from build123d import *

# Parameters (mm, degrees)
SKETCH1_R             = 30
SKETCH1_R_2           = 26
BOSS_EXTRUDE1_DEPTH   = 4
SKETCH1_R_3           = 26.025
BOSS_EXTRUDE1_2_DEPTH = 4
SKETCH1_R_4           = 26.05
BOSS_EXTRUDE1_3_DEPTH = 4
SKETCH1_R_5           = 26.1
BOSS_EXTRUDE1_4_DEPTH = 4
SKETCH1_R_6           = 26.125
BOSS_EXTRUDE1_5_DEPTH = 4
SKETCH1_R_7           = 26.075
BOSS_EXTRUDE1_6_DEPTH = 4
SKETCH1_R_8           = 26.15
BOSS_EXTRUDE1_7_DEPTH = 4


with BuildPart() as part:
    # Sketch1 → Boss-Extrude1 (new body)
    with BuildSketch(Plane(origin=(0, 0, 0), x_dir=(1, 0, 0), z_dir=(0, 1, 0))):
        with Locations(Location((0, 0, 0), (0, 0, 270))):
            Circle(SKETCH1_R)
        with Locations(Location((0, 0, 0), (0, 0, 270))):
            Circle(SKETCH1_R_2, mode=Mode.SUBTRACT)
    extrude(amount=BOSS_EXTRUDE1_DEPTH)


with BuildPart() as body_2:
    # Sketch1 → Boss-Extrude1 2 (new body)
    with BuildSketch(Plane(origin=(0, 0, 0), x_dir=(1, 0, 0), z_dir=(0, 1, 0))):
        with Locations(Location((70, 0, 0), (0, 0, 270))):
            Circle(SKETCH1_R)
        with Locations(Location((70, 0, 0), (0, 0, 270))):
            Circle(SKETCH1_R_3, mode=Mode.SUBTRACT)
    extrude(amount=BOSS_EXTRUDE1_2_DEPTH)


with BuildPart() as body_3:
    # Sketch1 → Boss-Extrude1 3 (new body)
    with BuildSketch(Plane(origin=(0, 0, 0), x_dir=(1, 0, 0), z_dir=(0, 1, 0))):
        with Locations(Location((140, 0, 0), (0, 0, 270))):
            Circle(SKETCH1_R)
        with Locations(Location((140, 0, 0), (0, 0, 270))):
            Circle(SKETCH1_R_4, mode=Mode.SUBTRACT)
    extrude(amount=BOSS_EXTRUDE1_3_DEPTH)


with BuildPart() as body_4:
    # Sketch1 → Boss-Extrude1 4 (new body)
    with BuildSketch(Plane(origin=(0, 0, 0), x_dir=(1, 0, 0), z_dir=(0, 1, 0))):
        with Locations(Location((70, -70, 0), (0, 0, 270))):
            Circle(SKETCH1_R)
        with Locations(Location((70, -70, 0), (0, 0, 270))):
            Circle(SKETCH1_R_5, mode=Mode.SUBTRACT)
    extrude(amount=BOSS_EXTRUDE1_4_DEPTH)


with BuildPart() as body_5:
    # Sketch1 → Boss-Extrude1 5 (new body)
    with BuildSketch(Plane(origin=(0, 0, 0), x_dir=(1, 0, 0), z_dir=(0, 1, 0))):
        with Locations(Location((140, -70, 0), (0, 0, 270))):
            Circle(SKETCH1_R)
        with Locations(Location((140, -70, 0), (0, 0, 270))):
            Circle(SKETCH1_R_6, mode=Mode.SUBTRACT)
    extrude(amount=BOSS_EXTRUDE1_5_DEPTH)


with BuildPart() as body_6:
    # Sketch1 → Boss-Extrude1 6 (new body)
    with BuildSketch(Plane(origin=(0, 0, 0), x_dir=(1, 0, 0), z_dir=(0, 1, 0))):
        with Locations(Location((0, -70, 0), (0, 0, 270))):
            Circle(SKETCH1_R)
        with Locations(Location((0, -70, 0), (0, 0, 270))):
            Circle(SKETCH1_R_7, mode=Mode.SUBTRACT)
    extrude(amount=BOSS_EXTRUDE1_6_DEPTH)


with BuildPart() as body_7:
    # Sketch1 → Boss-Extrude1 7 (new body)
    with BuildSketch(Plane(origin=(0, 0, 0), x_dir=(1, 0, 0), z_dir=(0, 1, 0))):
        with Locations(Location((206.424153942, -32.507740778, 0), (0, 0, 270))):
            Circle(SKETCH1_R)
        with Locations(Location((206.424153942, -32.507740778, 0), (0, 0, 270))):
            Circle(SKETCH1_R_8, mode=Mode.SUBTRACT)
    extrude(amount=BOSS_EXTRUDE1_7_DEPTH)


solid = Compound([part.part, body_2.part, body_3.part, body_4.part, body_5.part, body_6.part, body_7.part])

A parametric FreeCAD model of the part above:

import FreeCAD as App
import Part
import Sketcher

doc = App.newDocument("Part")
body = doc.addObject("PartDesign::Body", "Body")

# Sketch on XZ plane
sketch1 = doc.addObject("Sketcher::SketchObject", "Sketch")
body.addObject(sketch1)
sketch1.AttachmentSupport = (doc.XZ_Plane, [""])
sketch1.MapMode = "FlatFace"
sketch1.addGeometry(Part.Circle(App.Vector(0, 0, 0), App.Vector(0, 0, 1), 30), False)
sketch1.addGeometry(Part.Circle(App.Vector(0, 0, 0), App.Vector(0, 0, 1), 26), False)
sketch1.addConstraint(Sketcher.Constraint("Coincident", 0, 3, -1, 1))
sketch1.addConstraint(Sketcher.Constraint("Coincident", 1, 3, -1, 1))
sketch1.addConstraint(Sketcher.Constraint("Diameter", 0, 60.0))
sketch1.addConstraint(Sketcher.Constraint("Diameter", 1, 52.0))
pad1 = doc.addObject("PartDesign::Pad", "Pad")
body.addObject(pad1)
pad1.Profile = sketch1
pad1.Length = 4
pad1.Reversed = True
body2 = doc.addObject("PartDesign::Body", "Body001")

# Sketch on XZ plane
sketch2 = doc.addObject("Sketcher::SketchObject", "Sketch001")
body2.addObject(sketch2)
sketch2.AttachmentSupport = (doc.getObject("XZ_Plane001"), [""])
sketch2.MapMode = "FlatFace"
sketch2.addGeometry(Part.Circle(App.Vector(70, 0, 0), App.Vector(0, 0, 1), 30), False)
sketch2.addGeometry(Part.Circle(App.Vector(70, 0, 0), App.Vector(0, 0, 1), 26.025), False)
sketch2.addConstraint(Sketcher.Constraint("Coincident", 1, 3, 0, 3))
sketch2.addConstraint(Sketcher.Constraint("PointOnObject", 0, 3, -1))
sketch2.addConstraint(Sketcher.Constraint("Diameter", 0, 60.0))
sketch2.addConstraint(Sketcher.Constraint("Diameter", 1, 52.05))
sketch2.addConstraint(Sketcher.Constraint("DistanceX", -1, 1, 0, 3, 70.0))
pad2 = doc.addObject("PartDesign::Pad", "Pad001")
body2.addObject(pad2)
pad2.Profile = sketch2
pad2.Length = 4
pad2.Reversed = True
body3 = doc.addObject("PartDesign::Body", "Body002")

# Sketch on XZ plane
sketch3 = doc.addObject("Sketcher::SketchObject", "Sketch002")
body3.addObject(sketch3)
sketch3.AttachmentSupport = (doc.getObject("XZ_Plane002"), [""])
sketch3.MapMode = "FlatFace"
sketch3.addGeometry(Part.Circle(App.Vector(140, 0, 0), App.Vector(0, 0, 1), 30), False)
sketch3.addGeometry(Part.Circle(App.Vector(140, 0, 0), App.Vector(0, 0, 1), 26.05), False)
sketch3.addConstraint(Sketcher.Constraint("Coincident", 1, 3, 0, 3))
sketch3.addConstraint(Sketcher.Constraint("PointOnObject", 0, 3, -1))
sketch3.addConstraint(Sketcher.Constraint("Diameter", 0, 60.0))
sketch3.addConstraint(Sketcher.Constraint("Diameter", 1, 52.1))
sketch3.addConstraint(Sketcher.Constraint("DistanceX", -1, 1, 0, 3, 140.0))
pad3 = doc.addObject("PartDesign::Pad", "Pad002")
body3.addObject(pad3)
pad3.Profile = sketch3
pad3.Length = 4
pad3.Reversed = True
body4 = doc.addObject("PartDesign::Body", "Body003")

# Sketch on XZ plane
sketch4 = doc.addObject("Sketcher::SketchObject", "Sketch003")
body4.addObject(sketch4)
sketch4.AttachmentSupport = (doc.getObject("XZ_Plane003"), [""])
sketch4.MapMode = "FlatFace"
sketch4.addGeometry(Part.Circle(App.Vector(70, 70, 0), App.Vector(0, 0, 1), 30), False)
sketch4.addGeometry(Part.Circle(App.Vector(70, 70, 0), App.Vector(0, 0, 1), 26.1), False)
sketch4.addConstraint(Sketcher.Constraint("Coincident", 1, 3, 0, 3))
sketch4.addConstraint(Sketcher.Constraint("Diameter", 0, 60.0))
sketch4.addConstraint(Sketcher.Constraint("Diameter", 1, 52.2))
sketch4.addConstraint(Sketcher.Constraint("DistanceX", -1, 1, 0, 3, 70.0))
sketch4.addConstraint(Sketcher.Constraint("DistanceY", -1, 1, 0, 3, 70.0))
pad4 = doc.addObject("PartDesign::Pad", "Pad003")
body4.addObject(pad4)
pad4.Profile = sketch4
pad4.Length = 4
pad4.Reversed = True
body5 = doc.addObject("PartDesign::Body", "Body004")

# Sketch on XZ plane
sketch5 = doc.addObject("Sketcher::SketchObject", "Sketch004")
body5.addObject(sketch5)
sketch5.AttachmentSupport = (doc.getObject("XZ_Plane004"), [""])
sketch5.MapMode = "FlatFace"
sketch5.addGeometry(Part.Circle(App.Vector(140, 70, 0), App.Vector(0, 0, 1), 30), False)
sketch5.addGeometry(Part.Circle(App.Vector(140, 70, 0), App.Vector(0, 0, 1), 26.125), False)
sketch5.addConstraint(Sketcher.Constraint("Coincident", 1, 3, 0, 3))
sketch5.addConstraint(Sketcher.Constraint("Diameter", 0, 60.0))
sketch5.addConstraint(Sketcher.Constraint("Diameter", 1, 52.25))
sketch5.addConstraint(Sketcher.Constraint("DistanceX", -1, 1, 0, 3, 140.0))
sketch5.addConstraint(Sketcher.Constraint("DistanceY", -1, 1, 0, 3, 70.0))
pad5 = doc.addObject("PartDesign::Pad", "Pad004")
body5.addObject(pad5)
pad5.Profile = sketch5
pad5.Length = 4
pad5.Reversed = True
body6 = doc.addObject("PartDesign::Body", "Body005")

# Sketch on XZ plane
sketch6 = doc.addObject("Sketcher::SketchObject", "Sketch005")
body6.addObject(sketch6)
sketch6.AttachmentSupport = (doc.getObject("XZ_Plane005"), [""])
sketch6.MapMode = "FlatFace"
sketch6.addGeometry(Part.Circle(App.Vector(0, 70, 0), App.Vector(0, 0, 1), 30), False)
sketch6.addGeometry(Part.Circle(App.Vector(0, 70, 0), App.Vector(0, 0, 1), 26.075), False)
sketch6.addConstraint(Sketcher.Constraint("Coincident", 1, 3, 0, 3))
sketch6.addConstraint(Sketcher.Constraint("PointOnObject", 0, 3, -2))
sketch6.addConstraint(Sketcher.Constraint("Diameter", 0, 60.0))
sketch6.addConstraint(Sketcher.Constraint("Diameter", 1, 52.15))
sketch6.addConstraint(Sketcher.Constraint("DistanceY", -1, 1, 0, 3, 70.0))
pad6 = doc.addObject("PartDesign::Pad", "Pad005")
body6.addObject(pad6)
pad6.Profile = sketch6
pad6.Length = 4
pad6.Reversed = True
body7 = doc.addObject("PartDesign::Body", "Body006")

# Sketch on XZ plane
sketch7 = doc.addObject("Sketcher::SketchObject", "Sketch006")
body7.addObject(sketch7)
sketch7.AttachmentSupport = (doc.getObject("XZ_Plane006"), [""])
sketch7.MapMode = "FlatFace"
sketch7.addGeometry(Part.Circle(App.Vector(206.424154, 32.507741, 0), App.Vector(0, 0, 1), 30), False)
sketch7.addGeometry(Part.Circle(App.Vector(206.424154, 32.507741, 0), App.Vector(0, 0, 1), 26.15), False)
sketch7.addConstraint(Sketcher.Constraint("Coincident", 1, 3, 0, 3))
sketch7.addConstraint(Sketcher.Constraint("Diameter", 0, 60.0))
sketch7.addConstraint(Sketcher.Constraint("Diameter", 1, 52.3))
sketch7.addConstraint(Sketcher.Constraint("DistanceY", -1, 1, 0, 3, 32.507741))
sketch7.addConstraint(Sketcher.Constraint("DistanceX", -1, 1, 0, 3, 206.424154))
pad7 = doc.addObject("PartDesign::Pad", "Pad006")
body7.addObject(pad7)
pad7.Profile = sketch7
pad7.Length = 4
pad7.Reversed = True

doc.recompute()
